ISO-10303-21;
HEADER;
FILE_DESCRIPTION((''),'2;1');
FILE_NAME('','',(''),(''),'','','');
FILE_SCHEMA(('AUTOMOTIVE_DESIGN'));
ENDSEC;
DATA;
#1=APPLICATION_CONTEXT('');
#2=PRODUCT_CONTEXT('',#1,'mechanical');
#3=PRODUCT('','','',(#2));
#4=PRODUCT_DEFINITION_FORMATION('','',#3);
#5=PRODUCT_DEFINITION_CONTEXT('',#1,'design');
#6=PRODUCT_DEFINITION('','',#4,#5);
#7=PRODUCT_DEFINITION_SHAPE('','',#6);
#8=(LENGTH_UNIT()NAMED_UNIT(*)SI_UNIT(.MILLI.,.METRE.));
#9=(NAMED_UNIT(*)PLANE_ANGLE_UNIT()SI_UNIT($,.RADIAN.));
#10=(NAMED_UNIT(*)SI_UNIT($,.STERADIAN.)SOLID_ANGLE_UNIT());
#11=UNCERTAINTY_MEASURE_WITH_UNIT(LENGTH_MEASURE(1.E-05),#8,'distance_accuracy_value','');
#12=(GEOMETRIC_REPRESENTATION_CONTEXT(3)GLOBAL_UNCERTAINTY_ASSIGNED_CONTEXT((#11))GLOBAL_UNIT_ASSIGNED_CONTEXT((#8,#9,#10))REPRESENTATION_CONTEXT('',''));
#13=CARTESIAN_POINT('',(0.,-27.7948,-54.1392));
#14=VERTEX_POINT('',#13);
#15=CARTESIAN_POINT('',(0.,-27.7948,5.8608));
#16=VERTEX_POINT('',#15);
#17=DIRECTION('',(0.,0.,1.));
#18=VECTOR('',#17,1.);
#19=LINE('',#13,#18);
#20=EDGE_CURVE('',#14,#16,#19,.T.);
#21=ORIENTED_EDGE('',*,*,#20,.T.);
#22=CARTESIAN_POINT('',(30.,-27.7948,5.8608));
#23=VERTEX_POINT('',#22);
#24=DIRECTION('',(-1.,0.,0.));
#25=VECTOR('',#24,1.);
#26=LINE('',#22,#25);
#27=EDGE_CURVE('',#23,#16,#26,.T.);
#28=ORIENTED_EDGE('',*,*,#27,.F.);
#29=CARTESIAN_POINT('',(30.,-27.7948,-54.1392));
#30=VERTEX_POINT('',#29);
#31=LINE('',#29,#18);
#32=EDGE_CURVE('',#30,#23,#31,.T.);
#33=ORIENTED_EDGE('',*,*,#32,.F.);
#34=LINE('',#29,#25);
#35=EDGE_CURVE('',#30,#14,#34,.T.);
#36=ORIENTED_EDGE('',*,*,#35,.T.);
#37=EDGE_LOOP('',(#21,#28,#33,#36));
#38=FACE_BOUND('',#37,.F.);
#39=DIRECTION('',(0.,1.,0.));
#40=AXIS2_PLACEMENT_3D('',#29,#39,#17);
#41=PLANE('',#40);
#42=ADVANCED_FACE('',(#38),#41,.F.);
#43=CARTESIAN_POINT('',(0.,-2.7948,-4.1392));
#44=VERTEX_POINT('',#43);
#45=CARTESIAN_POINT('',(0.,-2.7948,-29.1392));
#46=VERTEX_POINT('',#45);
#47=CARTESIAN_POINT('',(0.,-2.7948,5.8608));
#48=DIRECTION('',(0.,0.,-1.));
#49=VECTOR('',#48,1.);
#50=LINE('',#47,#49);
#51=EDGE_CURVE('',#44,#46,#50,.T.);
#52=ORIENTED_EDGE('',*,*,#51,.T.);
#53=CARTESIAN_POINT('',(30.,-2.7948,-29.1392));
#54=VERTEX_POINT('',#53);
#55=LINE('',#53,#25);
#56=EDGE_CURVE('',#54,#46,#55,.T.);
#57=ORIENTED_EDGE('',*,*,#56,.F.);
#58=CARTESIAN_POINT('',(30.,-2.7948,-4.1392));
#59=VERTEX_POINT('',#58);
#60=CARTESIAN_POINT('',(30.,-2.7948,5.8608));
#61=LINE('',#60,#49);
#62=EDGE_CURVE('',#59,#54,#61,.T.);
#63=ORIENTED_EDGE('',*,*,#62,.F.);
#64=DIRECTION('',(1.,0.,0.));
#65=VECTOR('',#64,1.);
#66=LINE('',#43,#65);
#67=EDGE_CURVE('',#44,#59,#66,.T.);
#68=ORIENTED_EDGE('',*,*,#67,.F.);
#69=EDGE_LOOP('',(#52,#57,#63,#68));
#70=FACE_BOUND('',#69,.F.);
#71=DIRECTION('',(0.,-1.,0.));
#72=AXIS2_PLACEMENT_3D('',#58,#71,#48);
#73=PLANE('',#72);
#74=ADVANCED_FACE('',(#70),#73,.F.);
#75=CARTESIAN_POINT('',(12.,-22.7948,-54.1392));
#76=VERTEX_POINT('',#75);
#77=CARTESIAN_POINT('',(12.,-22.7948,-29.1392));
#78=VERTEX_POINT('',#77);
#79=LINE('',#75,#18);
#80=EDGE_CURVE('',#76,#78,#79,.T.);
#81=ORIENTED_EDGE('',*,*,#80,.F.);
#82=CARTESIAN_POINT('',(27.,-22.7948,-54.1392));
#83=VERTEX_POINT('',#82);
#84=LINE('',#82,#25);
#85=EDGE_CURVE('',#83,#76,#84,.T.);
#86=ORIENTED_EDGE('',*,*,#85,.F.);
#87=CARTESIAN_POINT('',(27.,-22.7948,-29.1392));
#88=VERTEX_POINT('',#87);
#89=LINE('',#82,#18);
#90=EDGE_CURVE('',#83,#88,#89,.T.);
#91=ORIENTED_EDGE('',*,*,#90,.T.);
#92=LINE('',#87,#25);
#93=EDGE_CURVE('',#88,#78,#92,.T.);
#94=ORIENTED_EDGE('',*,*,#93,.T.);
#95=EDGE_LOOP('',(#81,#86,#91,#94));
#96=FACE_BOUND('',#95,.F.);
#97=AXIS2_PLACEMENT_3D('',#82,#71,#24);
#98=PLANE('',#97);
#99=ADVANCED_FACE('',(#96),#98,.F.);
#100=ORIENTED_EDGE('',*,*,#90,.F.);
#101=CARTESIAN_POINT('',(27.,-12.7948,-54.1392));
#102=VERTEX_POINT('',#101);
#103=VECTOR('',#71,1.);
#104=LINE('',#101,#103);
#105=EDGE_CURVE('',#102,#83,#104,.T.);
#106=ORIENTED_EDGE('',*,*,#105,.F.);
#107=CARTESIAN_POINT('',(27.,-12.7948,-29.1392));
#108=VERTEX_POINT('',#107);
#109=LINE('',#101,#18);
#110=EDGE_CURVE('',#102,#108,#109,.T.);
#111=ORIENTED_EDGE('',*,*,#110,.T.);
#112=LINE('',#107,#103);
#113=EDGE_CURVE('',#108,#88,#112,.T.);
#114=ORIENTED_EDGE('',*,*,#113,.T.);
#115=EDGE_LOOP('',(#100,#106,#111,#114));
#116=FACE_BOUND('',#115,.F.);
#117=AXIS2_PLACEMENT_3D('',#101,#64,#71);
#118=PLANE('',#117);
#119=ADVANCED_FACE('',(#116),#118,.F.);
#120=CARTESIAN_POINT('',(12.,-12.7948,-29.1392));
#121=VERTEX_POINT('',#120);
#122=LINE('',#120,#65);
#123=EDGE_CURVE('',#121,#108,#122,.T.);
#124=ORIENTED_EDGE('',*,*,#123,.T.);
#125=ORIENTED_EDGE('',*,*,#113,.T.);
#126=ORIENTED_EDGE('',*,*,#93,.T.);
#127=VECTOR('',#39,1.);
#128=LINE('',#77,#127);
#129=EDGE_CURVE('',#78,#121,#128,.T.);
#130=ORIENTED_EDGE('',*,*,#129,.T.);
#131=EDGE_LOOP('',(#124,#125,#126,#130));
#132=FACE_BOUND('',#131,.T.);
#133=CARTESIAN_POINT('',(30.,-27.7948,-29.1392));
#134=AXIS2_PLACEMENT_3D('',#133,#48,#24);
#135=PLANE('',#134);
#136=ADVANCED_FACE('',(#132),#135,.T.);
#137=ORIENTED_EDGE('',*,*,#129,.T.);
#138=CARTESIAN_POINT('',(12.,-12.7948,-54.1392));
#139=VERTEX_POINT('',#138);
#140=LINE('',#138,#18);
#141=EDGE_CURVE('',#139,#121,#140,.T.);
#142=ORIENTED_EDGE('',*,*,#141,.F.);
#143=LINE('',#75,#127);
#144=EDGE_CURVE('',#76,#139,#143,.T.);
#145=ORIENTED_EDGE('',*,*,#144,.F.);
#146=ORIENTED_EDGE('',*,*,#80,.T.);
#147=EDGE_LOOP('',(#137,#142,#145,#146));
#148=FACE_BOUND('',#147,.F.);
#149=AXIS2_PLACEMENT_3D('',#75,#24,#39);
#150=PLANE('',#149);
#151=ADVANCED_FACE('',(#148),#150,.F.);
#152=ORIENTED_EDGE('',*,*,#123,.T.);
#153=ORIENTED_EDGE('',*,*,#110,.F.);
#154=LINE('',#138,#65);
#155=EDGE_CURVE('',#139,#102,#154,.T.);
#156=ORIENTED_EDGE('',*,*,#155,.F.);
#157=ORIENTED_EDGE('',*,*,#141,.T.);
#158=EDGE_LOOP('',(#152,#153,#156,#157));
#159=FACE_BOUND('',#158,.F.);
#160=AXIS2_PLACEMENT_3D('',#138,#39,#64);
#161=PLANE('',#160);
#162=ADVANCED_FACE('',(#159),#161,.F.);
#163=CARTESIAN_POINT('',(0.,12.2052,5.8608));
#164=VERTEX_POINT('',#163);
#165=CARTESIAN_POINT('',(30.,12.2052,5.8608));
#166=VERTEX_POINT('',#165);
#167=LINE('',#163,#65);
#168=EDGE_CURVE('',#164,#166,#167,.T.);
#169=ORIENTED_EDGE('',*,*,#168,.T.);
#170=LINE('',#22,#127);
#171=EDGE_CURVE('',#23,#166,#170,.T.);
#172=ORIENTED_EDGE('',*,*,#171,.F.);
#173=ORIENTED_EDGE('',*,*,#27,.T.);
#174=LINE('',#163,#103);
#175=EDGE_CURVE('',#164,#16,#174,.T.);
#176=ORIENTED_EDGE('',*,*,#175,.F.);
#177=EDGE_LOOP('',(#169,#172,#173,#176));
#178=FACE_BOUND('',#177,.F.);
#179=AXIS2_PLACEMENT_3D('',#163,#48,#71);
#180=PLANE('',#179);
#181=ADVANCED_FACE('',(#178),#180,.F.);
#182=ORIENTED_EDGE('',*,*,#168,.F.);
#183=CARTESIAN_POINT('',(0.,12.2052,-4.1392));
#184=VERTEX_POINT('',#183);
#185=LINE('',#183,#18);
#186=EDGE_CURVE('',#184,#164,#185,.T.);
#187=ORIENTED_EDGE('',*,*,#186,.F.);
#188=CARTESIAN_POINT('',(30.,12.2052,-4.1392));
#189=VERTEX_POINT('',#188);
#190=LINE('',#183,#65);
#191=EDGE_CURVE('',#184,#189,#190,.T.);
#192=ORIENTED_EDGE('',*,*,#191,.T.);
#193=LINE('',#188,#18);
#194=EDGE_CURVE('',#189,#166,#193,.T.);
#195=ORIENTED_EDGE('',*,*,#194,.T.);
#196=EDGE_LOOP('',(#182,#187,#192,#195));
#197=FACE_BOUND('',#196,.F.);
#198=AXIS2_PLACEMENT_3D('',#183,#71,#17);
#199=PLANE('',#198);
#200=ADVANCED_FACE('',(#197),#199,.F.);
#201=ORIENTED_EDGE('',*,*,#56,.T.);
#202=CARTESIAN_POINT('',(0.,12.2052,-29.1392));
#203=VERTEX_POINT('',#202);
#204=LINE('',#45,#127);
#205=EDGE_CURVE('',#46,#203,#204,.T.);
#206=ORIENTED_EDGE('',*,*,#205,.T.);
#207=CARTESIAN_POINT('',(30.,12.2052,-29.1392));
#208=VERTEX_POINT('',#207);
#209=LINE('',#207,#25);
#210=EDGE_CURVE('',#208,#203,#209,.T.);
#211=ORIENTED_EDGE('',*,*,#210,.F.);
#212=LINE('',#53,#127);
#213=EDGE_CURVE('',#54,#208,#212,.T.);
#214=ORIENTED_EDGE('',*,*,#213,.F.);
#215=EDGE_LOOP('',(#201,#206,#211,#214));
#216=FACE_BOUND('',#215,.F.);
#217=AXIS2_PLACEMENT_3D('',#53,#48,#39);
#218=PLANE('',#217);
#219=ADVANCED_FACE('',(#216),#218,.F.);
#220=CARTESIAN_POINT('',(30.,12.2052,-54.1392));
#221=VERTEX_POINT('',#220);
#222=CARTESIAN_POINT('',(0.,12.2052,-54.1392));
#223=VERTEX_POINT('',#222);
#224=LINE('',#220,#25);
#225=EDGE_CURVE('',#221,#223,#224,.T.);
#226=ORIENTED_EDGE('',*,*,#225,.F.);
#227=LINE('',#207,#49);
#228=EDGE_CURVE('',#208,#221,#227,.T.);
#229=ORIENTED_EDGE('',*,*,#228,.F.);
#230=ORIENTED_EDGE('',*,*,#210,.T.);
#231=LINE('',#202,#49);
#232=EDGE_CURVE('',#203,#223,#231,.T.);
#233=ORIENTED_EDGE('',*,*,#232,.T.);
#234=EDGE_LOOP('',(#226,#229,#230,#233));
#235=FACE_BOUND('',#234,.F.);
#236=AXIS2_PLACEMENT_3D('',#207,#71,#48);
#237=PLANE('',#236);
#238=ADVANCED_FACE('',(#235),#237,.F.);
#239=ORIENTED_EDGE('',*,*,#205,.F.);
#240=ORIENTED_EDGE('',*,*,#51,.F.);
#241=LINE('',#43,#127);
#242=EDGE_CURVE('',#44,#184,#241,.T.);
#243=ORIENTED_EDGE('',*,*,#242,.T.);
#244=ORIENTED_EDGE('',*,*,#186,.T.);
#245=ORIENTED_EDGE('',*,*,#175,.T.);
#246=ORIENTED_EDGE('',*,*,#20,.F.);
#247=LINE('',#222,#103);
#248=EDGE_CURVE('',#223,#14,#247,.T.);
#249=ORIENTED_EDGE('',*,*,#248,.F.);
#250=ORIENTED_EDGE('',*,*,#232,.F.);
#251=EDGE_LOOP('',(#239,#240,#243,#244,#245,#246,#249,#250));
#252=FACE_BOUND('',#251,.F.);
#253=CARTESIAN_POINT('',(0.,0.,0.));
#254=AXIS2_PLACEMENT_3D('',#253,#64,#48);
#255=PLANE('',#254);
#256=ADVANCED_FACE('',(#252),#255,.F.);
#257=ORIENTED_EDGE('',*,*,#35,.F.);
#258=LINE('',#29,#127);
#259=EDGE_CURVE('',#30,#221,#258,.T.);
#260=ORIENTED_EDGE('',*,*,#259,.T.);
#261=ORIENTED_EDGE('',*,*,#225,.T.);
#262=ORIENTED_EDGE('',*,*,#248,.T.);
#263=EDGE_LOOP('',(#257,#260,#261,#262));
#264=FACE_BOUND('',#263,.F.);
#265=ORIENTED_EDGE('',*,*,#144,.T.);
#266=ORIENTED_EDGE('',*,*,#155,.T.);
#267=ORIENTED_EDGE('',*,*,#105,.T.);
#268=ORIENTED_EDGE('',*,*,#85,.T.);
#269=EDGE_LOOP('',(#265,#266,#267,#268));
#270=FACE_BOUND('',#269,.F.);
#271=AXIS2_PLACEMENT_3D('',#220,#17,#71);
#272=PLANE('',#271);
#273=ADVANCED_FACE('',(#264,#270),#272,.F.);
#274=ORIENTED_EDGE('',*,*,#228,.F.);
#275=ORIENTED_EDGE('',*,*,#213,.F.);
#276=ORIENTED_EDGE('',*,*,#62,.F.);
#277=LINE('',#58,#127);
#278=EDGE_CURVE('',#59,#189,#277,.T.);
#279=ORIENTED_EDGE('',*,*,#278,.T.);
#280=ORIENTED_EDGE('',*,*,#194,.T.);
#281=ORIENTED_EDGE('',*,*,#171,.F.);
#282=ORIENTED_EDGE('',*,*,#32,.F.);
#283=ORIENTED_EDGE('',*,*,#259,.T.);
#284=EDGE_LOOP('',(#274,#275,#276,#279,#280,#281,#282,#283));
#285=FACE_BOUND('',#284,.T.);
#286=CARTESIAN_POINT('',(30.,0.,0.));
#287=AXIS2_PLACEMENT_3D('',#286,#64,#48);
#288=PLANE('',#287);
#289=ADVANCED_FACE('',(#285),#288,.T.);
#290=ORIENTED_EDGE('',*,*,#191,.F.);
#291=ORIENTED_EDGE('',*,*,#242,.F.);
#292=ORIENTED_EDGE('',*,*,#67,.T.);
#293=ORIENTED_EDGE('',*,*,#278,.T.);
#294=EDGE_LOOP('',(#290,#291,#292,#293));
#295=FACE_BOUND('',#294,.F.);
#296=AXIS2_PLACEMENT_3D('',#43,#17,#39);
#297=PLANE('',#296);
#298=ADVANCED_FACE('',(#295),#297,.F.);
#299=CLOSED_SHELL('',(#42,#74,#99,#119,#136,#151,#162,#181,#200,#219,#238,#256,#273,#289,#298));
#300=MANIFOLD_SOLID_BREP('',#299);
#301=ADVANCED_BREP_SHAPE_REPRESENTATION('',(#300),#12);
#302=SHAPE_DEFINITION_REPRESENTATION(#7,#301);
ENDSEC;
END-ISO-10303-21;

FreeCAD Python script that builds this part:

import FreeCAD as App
import Part
import Sketcher

doc = App.newDocument("Part")
body = doc.addObject("PartDesign::Body", "Body")

sketch1 = body.newObject("Sketcher::SketchObject", "Sketch")
sketch1.AttachmentSupport = (doc.getObject("YZ_Plane"), [""])
sketch1.MapMode = "FlatFace"
sketch1.addGeometry([
    Part.LineSegment(App.Vector(12, -4, 0), App.Vector(12, 6, 0)),
    Part.LineSegment(App.Vector(12, 6, 0), App.Vector(-3, 6, 0)),
    Part.LineSegment(App.Vector(-3, 6, 0), App.Vector(-3, -4, 0)),
    Part.LineSegment(App.Vector(-3, -4, 0), App.Vector(12, -4, 0)),
], False)
sketch1.addConstraint([
    Sketcher.Constraint("Coincident", 0, 2, 1, 1),
    Sketcher.Constraint("Coincident", 1, 2, 2, 1),
    Sketcher.Constraint("Coincident", 2, 2, 3, 1),
    Sketcher.Constraint("Coincident", 3, 2, 0, 1),
    Sketcher.Constraint("Vertical", 0),
    Sketcher.Constraint("Horizontal", 1),
    Sketcher.Constraint("Vertical", 2),
    Sketcher.Constraint("Horizontal", 3),
    Sketcher.Constraint("DistanceX", 1, 2, 1, 1, 15.0),
    Sketcher.Constraint("DistanceY", 0, 1, 0, 2, 10.0),
    Sketcher.Constraint("DistanceX", -1, 1, 0, 2, 12.2052),
    Sketcher.Constraint("DistanceY", -1, 1, 0, 2, 5.8608),
])
pad1 = body.newObject("PartDesign::Pad", "Pad")
pad1.Profile = sketch1
pad1.Length = 30

sketch2 = body.newObject("Sketcher::SketchObject", "Sketch001")
sketch2.AttachmentSupport = (doc.getObject("YZ_Plane"), [""])
sketch2.MapMode = "FlatFace"
sketch2.AttachmentOffset = App.Placement(App.Vector(0, 0, 30), App.Rotation())
sketch2.addGeometry([
    Part.LineSegment(App.Vector(-3, -54, 0), App.Vector(-3, 6, 0)),
    Part.LineSegment(App.Vector(-3, 6, 0), App.Vector(-28, 6, 0)),
    Part.LineSegment(App.Vector(-28, 6, 0), App.Vector(-28, -54, 0)),
    Part.LineSegment(App.Vector(-28, -54, 0), App.Vector(-3, -54, 0)),
], False)
sketch2.addConstraint([
    Sketcher.Constraint("Coincident", 0, 2, 1, 1),
    Sketcher.Constraint("Coincident", 1, 2, 2, 1),
    Sketcher.Constraint("Coincident", 2, 2, 3, 1),
    Sketcher.Constraint("Coincident", 3, 2, 0, 1),
    Sketcher.Constraint("Vertical", 0),
    Sketcher.Constraint("Horizontal", 1),
    Sketcher.Constraint("Vertical", 2),
    Sketcher.Constraint("Horizontal", 3),
    Sketcher.Constraint("DistanceX", 1, 2, 1, 1, 25.0),
    Sketcher.Constraint("DistanceY", 0, 1, 0, 2, 60.0),
    Sketcher.Constraint("DistanceX", 0, 2, -1, 1, 2.7948),
    Sketcher.Constraint("DistanceY", -1, 1, 0, 2, 5.8608),
])
pad2 = body.newObject("PartDesign::Pad", "Pad001")
pad2.Profile = sketch2
pad2.Length = 30
pad2.Reversed = True

sketch3 = body.newObject("Sketcher::SketchObject", "Sketch002")
sketch3.AttachmentSupport = (doc.getObject("YZ_Plane"), [""])
sketch3.MapMode = "FlatFace"
sketch3.AttachmentOffset = App.Placement(App.Vector(0, 0, 30), App.Rotation())
sketch3.addGeometry([
    Part.LineSegment(App.Vector(-3, -29, 0), App.Vector(-3, -54, 0)),
    Part.LineSegment(App.Vector(-3, -54, 0), App.Vector(12, -54, 0)),
    Part.LineSegment(App.Vector(12, -54, 0), App.Vector(12, -29, 0)),
    Part.LineSegment(App.Vector(12, -29, 0), App.Vector(-3, -29, 0)),
], False)
sketch3.addConstraint([
    Sketcher.Constraint("Coincident", 0, 2, 1, 1),
    Sketcher.Constraint("Coincident", 1, 2, 2, 1),
    Sketcher.Constraint("Coincident", 2, 2, 3, 1),
    Sketcher.Constraint("Coincident", 3, 2, 0, 1),
    Sketcher.Constraint("Vertical", 0),
    Sketcher.Constraint("Horizontal", 1),
    Sketcher.Constraint("Vertical", 2),
    Sketcher.Constraint("Horizontal", 3),
    Sketcher.Constraint("DistanceX", 1, 1, 1, 2, 15.0),
    Sketcher.Constraint("DistanceY", 0, 2, 0, 1, 25.0),
    Sketcher.Constraint("DistanceX", 0, 2, -1, 1, 2.7948),
    Sketcher.Constraint("DistanceY", 0, 2, -1, 1, 54.1392),
])
pad3 = body.newObject("PartDesign::Pad", "Pad002")
pad3.Profile = sketch3
pad3.Length = 30
pad3.Reversed = True

sketch4 = body.newObject("Sketcher::SketchObject", "Sketch003")
sketch4.AttachmentSupport = (doc.getObject("XY_Plane"), [""])
sketch4.MapMode = "FlatFace"
sketch4.AttachmentOffset = App.Placement(App.Vector(0, 0, -54.1392), App.Rotation())
sketch4.addGeometry([
    Part.LineSegment(App.Vector(27, -13, 0), App.Vector(27, -23, 0)),
    Part.LineSegment(App.Vector(27, -23, 0), App.Vector(12, -23, 0)),
    Part.LineSegment(App.Vector(12, -23, 0), App.Vector(12, -13, 0)),
    Part.LineSegment(App.Vector(12, -13, 0), App.Vector(27, -13, 0)),
], False)
sketch4.addConstraint([
    Sketcher.Constraint("Coincident", 0, 2, 1, 1),
    Sketcher.Constraint("Coincident", 1, 2, 2, 1),
    Sketcher.Constraint("Coincident", 2, 2, 3, 1),
    Sketcher.Constraint("Coincident", 3, 2, 0, 1),
    Sketcher.Constraint("Vertical", 0),
    Sketcher.Constraint("Horizontal", 1),
    Sketcher.Constraint("Vertical", 2),
    Sketcher.Constraint("Horizontal", 3),
    Sketcher.Constraint("DistanceX", 1, 2, 1, 1, 15.0),
    Sketcher.Constraint("DistanceY", 0, 2, 0, 1, 10.0),
    Sketcher.Constraint("DistanceX", -1, 1, 0, 2, 27.0),
    Sketcher.Constraint("DistanceY", 0, 2, -1, 1, 22.7948),
])
pocket1 = body.newObject("PartDesign::Pocket", "Pocket")
pocket1.Profile = sketch4
pocket1.Length = 25
pocket1.Reversed = True

doc.recompute()
